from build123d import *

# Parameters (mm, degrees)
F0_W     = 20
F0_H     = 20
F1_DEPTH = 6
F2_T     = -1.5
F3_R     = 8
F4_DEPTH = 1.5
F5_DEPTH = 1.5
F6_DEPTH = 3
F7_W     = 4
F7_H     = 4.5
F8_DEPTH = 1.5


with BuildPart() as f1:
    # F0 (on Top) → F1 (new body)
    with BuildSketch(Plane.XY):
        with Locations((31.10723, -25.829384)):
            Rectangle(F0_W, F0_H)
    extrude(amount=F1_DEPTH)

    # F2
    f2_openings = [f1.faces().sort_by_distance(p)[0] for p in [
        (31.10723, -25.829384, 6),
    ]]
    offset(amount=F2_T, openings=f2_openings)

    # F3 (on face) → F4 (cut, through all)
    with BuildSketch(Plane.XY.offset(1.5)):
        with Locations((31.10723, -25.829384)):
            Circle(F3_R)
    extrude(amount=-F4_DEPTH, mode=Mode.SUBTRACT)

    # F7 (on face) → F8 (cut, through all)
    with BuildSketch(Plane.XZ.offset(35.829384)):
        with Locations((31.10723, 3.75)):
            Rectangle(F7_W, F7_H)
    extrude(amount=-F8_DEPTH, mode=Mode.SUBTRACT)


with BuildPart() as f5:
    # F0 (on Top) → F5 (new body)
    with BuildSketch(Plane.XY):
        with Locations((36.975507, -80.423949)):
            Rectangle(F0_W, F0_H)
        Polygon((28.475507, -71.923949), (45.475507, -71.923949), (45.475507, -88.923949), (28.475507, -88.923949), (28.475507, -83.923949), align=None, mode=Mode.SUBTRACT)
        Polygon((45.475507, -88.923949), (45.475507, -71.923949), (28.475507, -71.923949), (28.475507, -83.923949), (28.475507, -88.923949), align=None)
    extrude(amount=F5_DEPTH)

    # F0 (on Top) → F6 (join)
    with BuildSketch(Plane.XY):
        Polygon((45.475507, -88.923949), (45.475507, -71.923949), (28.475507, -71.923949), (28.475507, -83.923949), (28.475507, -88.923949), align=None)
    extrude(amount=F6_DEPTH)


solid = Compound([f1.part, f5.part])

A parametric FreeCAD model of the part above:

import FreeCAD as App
import Part
import Sketcher

V = App.Vector


def faces_at(feature, points):
    """Names of the faces that lie closest to the given points."""
    faces = feature.Shape.Faces
    near = lambda p: min(range(len(faces)), key=lambda i: faces[i].distToShape(Part.Vertex(*p))[0])
    return sorted({f"Face{near(p) + 1}" for p in points})


def add_polygon(sketch, points):
    """Adds a closed chain of lines whose ends are joined by coincident constraints."""
    first, n = sketch.GeometryCount, len(points)
    for a, b in zip(points, points[1:] + points[:1]):
        sketch.addGeometry(Part.LineSegment(App.Vector(*a, 0), App.Vector(*b, 0)), False)
    for i in range(n):
        sketch.addConstraint(Sketcher.Constraint("Coincident", first + i, 2, first + (i + 1) % n, 1))

doc = App.newDocument("Part")
body = doc.addObject("PartDesign::Body", "Body")

# Sketch on XY plane
sketch1 = doc.addObject("Sketcher::SketchObject", "Sketch")
body.addObject(sketch1)
sketch1.AttachmentSupport = (doc.XY_Plane, [""])
sketch1.MapMode = "FlatFace"
add_polygon(sketch1, [(21.10723, -15.829384), (21.10723, -35.829384), (41.10723, -35.829384), (41.10723, -15.829384)])  # lines 0-3
sketch1.addConstraint([
    Sketcher.Constraint("Vertical", 0),
    Sketcher.Constraint("Horizontal", 1),
    Sketcher.Constraint("Vertical", 2),
    Sketcher.Constraint("Horizontal", 3),
    Sketcher.Constraint("Equal", 3, 0),
    Sketcher.Constraint("DistanceX", 1, 1, 1, 2, 20.0),
    Sketcher.Constraint("DistanceX", -1, 1, 0, 2, 21.10723),
    Sketcher.Constraint("DistanceY", 0, 2, -1, 1, 35.829384),
])
pad1 = doc.addObject("PartDesign::Pad", "Pad")
body.addObject(pad1)
pad1.Profile = sketch1
pad1.Length = 6
doc.recompute()

thickness = doc.addObject("PartDesign::Thickness", "Thickness")
body.addObject(thickness)
thickness.Base = (pad1, faces_at(pad1, [(31.107, -25.829, 6)]))
thickness.Value = 1.5
thickness.Reversed = True
thickness.Join = "Arc"

# Sketch on XY plane
sketch2 = doc.addObject("Sketcher::SketchObject", "Sketch001")
body.addObject(sketch2)
sketch2.AttachmentSupport = (doc.XY_Plane, [""])
sketch2.MapMode = "FlatFace"
sketch2.AttachmentOffset = App.Placement(V(0, 0, 1.5), App.Rotation())
sketch2.addGeometry(Part.Circle(V(31.10723, -25.829384, 0), V(0, 0, 1), 8), False)
sketch2.addConstraint([
    Sketcher.Constraint("Diameter", 0, 16.0),
    Sketcher.Constraint("DistanceX", -1, 1, 0, 3, 31.10723),
    Sketcher.Constraint("DistanceY", 0, 3, -1, 1, 25.829384),
])
pocket1 = doc.addObject("PartDesign::Pocket", "Pocket")
body.addObject(pocket1)
pocket1.Profile = sketch2
pocket1.Type = "ThroughAll"

# Sketch on XZ plane
sketch3 = doc.addObject("Sketcher::SketchObject", "Sketch002")
body.addObject(sketch3)
sketch3.AttachmentSupport = (doc.XZ_Plane, [""])
sketch3.MapMode = "FlatFace"
sketch3.AttachmentOffset = App.Placement(V(0, 0, 35.829384), App.Rotation())
add_polygon(sketch3, [(29.10723, 6), (29.10723, 1.5), (33.10723, 1.5), (33.10723, 6)])  # lines 0-3
sketch3.addConstraint([
    Sketcher.Constraint("Vertical", 0),
    Sketcher.Constraint("Horizontal", 1),
    Sketcher.Constraint("Vertical", 2),
    Sketcher.Constraint("Horizontal", 3),
    Sketcher.Constraint("DistanceX", 1, 1, 1, 2, 4.0),
    Sketcher.Constraint("DistanceY", 0, 2, 0, 1, 4.5),
    Sketcher.Constraint("DistanceY", -1, 1, 2, 2, 6.0),
    Sketcher.Constraint("DistanceX", -1, 1, 0, 2, 29.10723),
])
pocket2 = doc.addObject("PartDesign::Pocket", "Pocket001")
body.addObject(pocket2)
pocket2.Profile = sketch3
pocket2.Length = 1.5
body2 = doc.addObject("PartDesign::Body", "Body001")

# Sketch on XY plane
sketch4 = doc.addObject("Sketcher::SketchObject", "Sketch003")
body2.addObject(sketch4)
sketch4.AttachmentSupport = (doc.getObject("XY_Plane001"), [""])
sketch4.MapMode = "FlatFace"
add_polygon(sketch4, [(26.975507, -70.423949), (26.975507, -90.423949), (46.975507, -90.423949), (46.975507, -70.423949)])  # lines 0-3
sketch4.addConstraint([
    Sketcher.Constraint("Vertical", 0),
    Sketcher.Constraint("Horizontal", 1),
    Sketcher.Constraint("Vertical", 2),
    Sketcher.Constraint("Horizontal", 3),
    Sketcher.Constraint("Equal", 3, 0),
    Sketcher.Constraint("DistanceX", 1, 1, 1, 2, 20.0),
    Sketcher.Constraint("DistanceY", 0, 2, -1, 1, 90.423949),
    Sketcher.Constraint("DistanceX", -1, 1, 0, 2, 26.975507),
])
pad2 = doc.addObject("PartDesign::Pad", "Pad001")
body2.addObject(pad2)
pad2.Profile = sketch4
pad2.Length = 1.5

# Sketch on XY plane
sketch5 = doc.addObject("Sketcher::SketchObject", "Sketch004")
body2.addObject(sketch5)
sketch5.AttachmentSupport = (doc.getObject("XY_Plane001"), [""])
sketch5.MapMode = "FlatFace"
add_polygon(sketch5, [(45.475507, -88.923949), (45.475507, -71.923949), (28.475507, -71.923949), (28.475507, -88.923949)])  # lines 0-3
sketch5.addConstraint([
    Sketcher.Constraint("Vertical", 0),
    Sketcher.Constraint("Horizontal", 1),
    Sketcher.Constraint("Vertical", 2),
    Sketcher.Constraint("Horizontal", 3),
    Sketcher.Constraint("Equal", 3, 0),
    Sketcher.Constraint("DistanceX", 1, 2, 1, 1, 17.0),
    Sketcher.Constraint("DistanceY", 0, 2, -1, 1, 71.923949),
    Sketcher.Constraint("DistanceX", -1, 1, 0, 2, 45.475507),
])
pad3 = doc.addObject("PartDesign::Pad", "Pad002")
body2.addObject(pad3)
pad3.Profile = sketch5
pad3.Length = 3

doc.recompute()
